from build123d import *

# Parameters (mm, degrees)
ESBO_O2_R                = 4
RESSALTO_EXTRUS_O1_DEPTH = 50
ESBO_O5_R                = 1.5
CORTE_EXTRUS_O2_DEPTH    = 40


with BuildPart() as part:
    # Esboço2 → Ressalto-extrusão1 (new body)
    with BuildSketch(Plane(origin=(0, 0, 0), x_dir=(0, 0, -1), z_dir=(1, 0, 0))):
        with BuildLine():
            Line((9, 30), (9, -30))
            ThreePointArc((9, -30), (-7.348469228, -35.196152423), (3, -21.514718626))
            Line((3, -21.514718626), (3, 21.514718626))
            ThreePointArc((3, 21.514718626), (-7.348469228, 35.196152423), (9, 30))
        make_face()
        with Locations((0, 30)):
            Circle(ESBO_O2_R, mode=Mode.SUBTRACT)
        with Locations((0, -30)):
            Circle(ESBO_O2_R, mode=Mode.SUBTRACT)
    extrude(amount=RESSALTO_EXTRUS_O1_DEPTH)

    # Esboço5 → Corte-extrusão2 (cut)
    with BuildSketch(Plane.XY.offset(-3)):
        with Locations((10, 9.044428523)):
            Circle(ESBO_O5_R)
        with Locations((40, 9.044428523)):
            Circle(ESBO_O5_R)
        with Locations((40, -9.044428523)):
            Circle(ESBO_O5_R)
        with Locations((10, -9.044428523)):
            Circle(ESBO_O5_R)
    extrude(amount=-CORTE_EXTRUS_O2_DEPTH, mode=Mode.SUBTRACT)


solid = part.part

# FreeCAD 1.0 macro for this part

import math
import FreeCAD as App
import Part
import Sketcher
from FreeCAD import Vector
Q = App.Units.Quantity

doc = App.newDocument("Part")
params = doc.addObject("Spreadsheet::Sheet", "Params")
for row, (alias, value) in enumerate([
    ("sketch1_diameter", "8 mm"),
    ("sketch1_radius", "9 mm"),
    ("sketch1_width", "60 mm"),
    ("pad1_length", "50 mm"),
    ("sketch2_diameter", "3 mm"),
    ("pocket1_length", "40 mm"),
], start=1):
    params.set(f"A{row}", alias)
    params.set(f"B{row}", "=" + value)
    params.setAlias(f"B{row}", alias)

body = doc.addObject("PartDesign::Body", "Body")

# Sketch on YZ plane
sketch1 = body.newObject("Sketcher::SketchObject", "Sketch")
sketch1.AttachmentSupport = (doc.getObject("YZ_Plane"), [""])
sketch1.MapMode = "FlatFace"
sketch1.addGeometry(Part.LineSegment(Vector(-30, -9, 0), Vector(30, -9, 0)), False)
sketch1.addGeometry(Part.ArcOfCircle(Part.Circle(Vector(30, 0, 0), Vector(0, 0, 1), 9), math.radians(-90), math.radians(199)), False)
sketch1.addGeometry(Part.LineSegment(Vector(21.5, -3, 0), Vector(-21.5, -3, 0)), False)
sketch1.addGeometry(Part.ArcOfCircle(Part.Circle(Vector(-30, 0, 0), Vector(0, 0, 1), 9), math.radians(-19), math.radians(270)), False)
sketch1.addGeometry(Part.Circle(Vector(-30, 0, 0), Vector(0, 0, 1), 4), False)
sketch1.addGeometry(Part.Circle(Vector(30, 0, 0), Vector(0, 0, 1), 4), False)
sketch1.addConstraint(Sketcher.Constraint("Tangent", 0, 2, 1, 1))
sketch1.addConstraint(Sketcher.Constraint("Coincident", 1, 2, 2, 1))
sketch1.addConstraint(Sketcher.Constraint("Coincident", 2, 2, 3, 1))
sketch1.addConstraint(Sketcher.Constraint("Tangent", 3, 2, 0, 1))
sketch1.addConstraint(Sketcher.Constraint("Horizontal", 0))
sketch1.addConstraint(Sketcher.Constraint("Horizontal", 2))
sketch1.addConstraint(Sketcher.Constraint("Coincident", 4, 3, 3, 3))
sketch1.addConstraint(Sketcher.Constraint("Coincident", 5, 3, 1, 3))
sketch1.addConstraint(Sketcher.Constraint("Equal", 1, 3))
sketch1.addConstraint(Sketcher.Constraint("Equal", 4, 5))
sketch1.addConstraint(Sketcher.Constraint("Symmetric", 1, 3, 3, 3, -1, 1))
sketch1.addConstraint(Sketcher.Constraint("Diameter", 4, Q("8 mm")))
sketch1.addConstraint(Sketcher.Constraint("Radius", 1, Q("9 mm")))
sketch1.addConstraint(Sketcher.Constraint("DistanceX", 0, 1, 0, 2, Q("60 mm")))
sketch1.addConstraint(Sketcher.Constraint("DistanceY", 1, 2, -1, 1, Q("3 mm")))
sketch1.setExpression("Constraints[11]", "Params.sketch1_diameter")
sketch1.setExpression("Constraints[12]", "Params.sketch1_radius")
sketch1.setExpression("Constraints[13]", "Params.sketch1_width")
pad1 = body.newObject("PartDesign::Pad", "Pad")
pad1.Profile = sketch1
pad1.setExpression("Length", "Params.pad1_length")

# Sketch on XY plane
sketch2 = body.newObject("Sketcher::SketchObject", "Sketch001")
sketch2.AttachmentSupport = (doc.getObject("XY_Plane"), [""])
sketch2.MapMode = "FlatFace"
sketch2.AttachmentOffset = App.Placement(Vector(0, 0, -3), App.Rotation())
sketch2.addGeometry(Part.Circle(Vector(10, 9, 0), Vector(0, 0, 1), 1.5), False)
sketch2.addGeometry(Part.Circle(Vector(40, 9, 0), Vector(0, 0, 1), 1.5), False)
sketch2.addGeometry(Part.Circle(Vector(40, -9, 0), Vector(0, 0, 1), 1.5), False)
sketch2.addGeometry(Part.Circle(Vector(10, -9, 0), Vector(0, 0, 1), 1.5), False)
sketch2.addConstraint(Sketcher.Constraint("Equal", 0, 1))
sketch2.addConstraint(Sketcher.Constraint("Equal", 1, 2))
sketch2.addConstraint(Sketcher.Constraint("Equal", 2, 3))
sketch2.addConstraint(Sketcher.Constraint("Symmetric", 1, 3, 2, 3, -1))
sketch2.addConstraint(Sketcher.Constraint("Symmetric", 0, 3, 3, 3, -1))
sketch2.addConstraint(Sketcher.Constraint("Horizontal", 0, 3, 1, 3))
sketch2.addConstraint(Sketcher.Constraint("Diameter", 0, Q("3 mm")))
sketch2.addConstraint(Sketcher.Constraint("DistanceX", -1, 1, 0, 3, Q("10 mm")))
sketch2.addConstraint(Sketcher.Constraint("DistanceX", -1, 1, 1, 3, Q("40 mm")))
sketch2.addConstraint(Sketcher.Constraint("DistanceY", -1, 1, 0, 3, Q("9.044429 mm")))
sketch2.setExpression("Constraints[6]", "Params.sketch2_diameter")
pocket1 = body.newObject("PartDesign::Pocket", "Pocket")
pocket1.Profile = sketch2
pocket1.setExpression("Length", "Params.pocket1_length")

doc.recompute()
